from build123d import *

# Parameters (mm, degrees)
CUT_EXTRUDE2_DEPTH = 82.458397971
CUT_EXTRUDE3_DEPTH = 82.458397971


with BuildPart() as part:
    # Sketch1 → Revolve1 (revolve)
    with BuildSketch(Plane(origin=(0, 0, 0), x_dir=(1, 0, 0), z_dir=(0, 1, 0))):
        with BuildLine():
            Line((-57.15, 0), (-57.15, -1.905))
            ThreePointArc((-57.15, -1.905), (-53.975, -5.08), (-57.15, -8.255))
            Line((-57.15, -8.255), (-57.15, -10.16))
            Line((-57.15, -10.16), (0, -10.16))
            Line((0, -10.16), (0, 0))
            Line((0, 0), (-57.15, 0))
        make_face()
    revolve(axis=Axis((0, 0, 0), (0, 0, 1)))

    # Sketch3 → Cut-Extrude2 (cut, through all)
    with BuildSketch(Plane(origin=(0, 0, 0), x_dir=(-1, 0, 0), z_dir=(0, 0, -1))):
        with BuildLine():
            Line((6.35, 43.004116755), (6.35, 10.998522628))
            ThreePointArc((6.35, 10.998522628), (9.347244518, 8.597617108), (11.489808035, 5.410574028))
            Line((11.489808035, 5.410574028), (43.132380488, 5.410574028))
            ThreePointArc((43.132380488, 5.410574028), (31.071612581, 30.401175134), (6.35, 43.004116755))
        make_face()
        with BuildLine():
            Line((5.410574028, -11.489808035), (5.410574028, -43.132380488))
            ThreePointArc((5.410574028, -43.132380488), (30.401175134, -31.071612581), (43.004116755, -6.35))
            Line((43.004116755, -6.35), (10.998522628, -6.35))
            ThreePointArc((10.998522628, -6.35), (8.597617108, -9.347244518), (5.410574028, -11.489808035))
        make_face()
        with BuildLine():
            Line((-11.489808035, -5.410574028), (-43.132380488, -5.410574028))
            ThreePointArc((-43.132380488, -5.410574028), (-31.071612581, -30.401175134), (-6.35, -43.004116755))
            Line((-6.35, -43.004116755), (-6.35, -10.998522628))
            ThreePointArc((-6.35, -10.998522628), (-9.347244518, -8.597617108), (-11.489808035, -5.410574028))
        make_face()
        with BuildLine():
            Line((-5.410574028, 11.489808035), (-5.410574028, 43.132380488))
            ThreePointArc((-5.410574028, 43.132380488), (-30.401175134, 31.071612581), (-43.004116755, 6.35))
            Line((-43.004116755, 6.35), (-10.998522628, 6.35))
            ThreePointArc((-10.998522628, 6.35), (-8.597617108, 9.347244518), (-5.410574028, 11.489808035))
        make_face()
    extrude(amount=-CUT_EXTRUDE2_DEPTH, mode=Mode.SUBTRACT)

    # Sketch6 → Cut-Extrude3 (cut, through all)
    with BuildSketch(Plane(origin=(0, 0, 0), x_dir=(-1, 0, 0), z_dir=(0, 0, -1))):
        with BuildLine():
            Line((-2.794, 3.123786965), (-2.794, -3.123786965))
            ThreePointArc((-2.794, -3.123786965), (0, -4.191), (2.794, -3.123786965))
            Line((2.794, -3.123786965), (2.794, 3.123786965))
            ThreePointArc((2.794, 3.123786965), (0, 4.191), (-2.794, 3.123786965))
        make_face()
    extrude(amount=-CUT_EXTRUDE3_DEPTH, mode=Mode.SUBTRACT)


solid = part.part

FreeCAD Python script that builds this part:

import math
import FreeCAD as App
import Part
import Sketcher
Q = App.Units.Quantity

doc = App.newDocument("Part")
params = doc.addObject("Spreadsheet::Sheet", "Params")
for row, (alias, value) in enumerate([
    ("sketch1_height", "0.4 in"),
    ("sketch1_radius", "0.125 in"),
    ("sketch1_width", "2.25 in"),
    ("revolution_angle", "360 deg"),
    ("sketch2_radius", "0.5 in"),
    ("sketch3_radius", "0.165 in"),
], start=1):
    params.set(f"A{row}", alias)
    params.set(f"B{row}", "=" + value)
    params.setAlias(f"B{row}", alias)

body = doc.addObject("PartDesign::Body", "Body")

sketch1 = doc.addObject("Sketcher::SketchObject", "Sketch")
body.addObject(sketch1)
sketch1.AttachmentSupport = (doc.XZ_Plane, [""])
sketch1.MapMode = "FlatFace"
sketch1.addGeometry([
    Part.LineSegment(App.Vector(-57.15, 0, 0), App.Vector(-57.15, 1.905, 0)),
    Part.ArcOfCircle(Part.Circle(App.Vector(-57.15, 5.08, 0), App.Vector(0, 0, 1), 3.175), math.radians(-90), math.radians(90)),
    Part.LineSegment(App.Vector(-57.15, 8.255, 0), App.Vector(-57.15, 10.16, 0)),
    Part.LineSegment(App.Vector(-57.15, 10.16, 0), App.Vector(0, 10.16, 0)),
    Part.LineSegment(App.Vector(0, 10.16, 0), App.Vector(0, 0, 0)),
    Part.LineSegment(App.Vector(0, 0, 0), App.Vector(-57.15, 0, 0)),
], False)
sketch1.addConstraint([
    Sketcher.Constraint("Coincident", 0, 2, 1, 1),
    Sketcher.Constraint("Coincident", 1, 2, 2, 1),
    Sketcher.Constraint("Coincident", 2, 2, 3, 1),
    Sketcher.Constraint("Coincident", 3, 2, 4, 1),
    Sketcher.Constraint("Coincident", 4, 2, 5, 1),
    Sketcher.Constraint("Coincident", 5, 2, 0, 1),
    Sketcher.Constraint("Vertical", 0),
    Sketcher.Constraint("Vertical", 2),
    Sketcher.Constraint("Horizontal", 3),
    Sketcher.Constraint("Vertical", 4),
    Sketcher.Constraint("Horizontal", 5),
    Sketcher.Constraint("Coincident", 4, 2, -1, 1),
    Sketcher.Constraint("Vertical", 1, 3, 0, 2),
    Sketcher.Constraint("Vertical", 0, 2, 1, 2),
    Sketcher.Constraint("Equal", 0, 2),
    Sketcher.Constraint("DistanceY", 4, 2, 4, 1, Q("0.4 in")),
    Sketcher.Constraint("Radius", 1, Q("0.125 in")),
    Sketcher.Constraint("DistanceX", 3, 1, 3, 2, Q("2.25 in")),
])
sketch1.setExpression("Constraints[15]", "Params.sketch1_height")
sketch1.setExpression("Constraints[16]", "Params.sketch1_radius")
sketch1.setExpression("Constraints[17]", "Params.sketch1_width")
revolution = doc.addObject("PartDesign::Revolution", "Revolution")
body.addObject(revolution)
revolution.Profile = sketch1
revolution.ReferenceAxis = (sketch1, ["V_Axis"])
revolution.setExpression("Angle", "Params.revolution_angle")

sketch2 = doc.addObject("Sketcher::SketchObject", "Sketch001")
body.addObject(sketch2)
sketch2.AttachmentSupport = (doc.XY_Plane, [""])
sketch2.MapMode = "FlatFace"
sketch2.addGeometry([
    Part.LineSegment(App.Vector(-6.35, 43.004117, 0), App.Vector(-6.35, 10.998523, 0)),
    Part.ArcOfCircle(Part.Circle(App.Vector(0, 0, 0), App.Vector(0, 0, 1), 12.7), math.radians(120), math.radians(154.784158)),
    Part.LineSegment(App.Vector(-11.489808, 5.410574, 0), App.Vector(-43.13238, 5.410574, 0)),
    Part.ArcOfCircle(Part.Circle(App.Vector(0, 0, 0), App.Vector(0, 0, 1), 43.47041), math.radians(98.399615), math.radians(172.8501)),
    Part.LineSegment(App.Vector(-5.410574, -11.489808, 0), App.Vector(-5.410574, -43.13238, 0)),
    Part.ArcOfCircle(Part.Circle(App.Vector(0, 0, 0), App.Vector(0, 0, 1), 43.47041), math.radians(-171.600385), math.radians(-97.1499)),
    Part.LineSegment(App.Vector(-43.004117, -6.35, 0), App.Vector(-10.998523, -6.35, 0)),
    Part.ArcOfCircle(Part.Circle(App.Vector(0, 0, 0), App.Vector(0, 0, 1), 12.7), math.radians(-150), math.radians(-115.215842)),
    Part.LineSegment(App.Vector(11.489808, -5.410574, 0), App.Vector(43.13238, -5.410574, 0)),
    Part.ArcOfCircle(Part.Circle(App.Vector(0, 0, 0), App.Vector(0, 0, 1), 43.47041), math.radians(-81.600385), math.radians(-7.1499)),
    Part.LineSegment(App.Vector(6.35, -43.004117, 0), App.Vector(6.35, -10.998523, 0)),
    Part.ArcOfCircle(Part.Circle(App.Vector(0, 0, 0), App.Vector(0, 0, 1), 12.7), math.radians(-60), math.radians(-25.215842)),
    Part.LineSegment(App.Vector(5.410574, 11.489808, 0), App.Vector(5.410574, 43.13238, 0)),
    Part.ArcOfCircle(Part.Circle(App.Vector(0, 0, 0), App.Vector(0, 0, 1), 43.47041), math.radians(8.399615), math.radians(82.8501)),
    Part.LineSegment(App.Vector(43.004117, 6.35, 0), App.Vector(10.998523, 6.35, 0)),
    Part.ArcOfCircle(Part.Circle(App.Vector(0, 0, 0), App.Vector(0, 0, 1), 12.7), math.radians(30), math.radians(64.784158)),
], False)
sketch2.addConstraint([
    Sketcher.Constraint("Coincident", 0, 2, 1, 1),
    Sketcher.Constraint("Coincident", 1, 2, 2, 1),
    Sketcher.Constraint("Coincident", 2, 2, 3, 2),
    Sketcher.Constraint("Coincident", 3, 1, 0, 1),
    Sketcher.Constraint("Coincident", 4, 2, 5, 2),
    Sketcher.Constraint("Coincident", 5, 1, 6, 1),
    Sketcher.Constraint("Coincident", 6, 2, 7, 1),
    Sketcher.Constraint("Coincident", 7, 2, 4, 1),
    Sketcher.Constraint("Coincident", 8, 2, 9, 2),
    Sketcher.Constraint("Coincident", 9, 1, 10, 1),
    Sketcher.Constraint("Coincident", 10, 2, 11, 1),
    Sketcher.Constraint("Coincident", 11, 2, 8, 1),
    Sketcher.Constraint("Coincident", 12, 2, 13, 2),
    Sketcher.Constraint("Coincident", 13, 1, 14, 1),
    Sketcher.Constraint("Coincident", 14, 2, 15, 1),
    Sketcher.Constraint("Coincident", 15, 2, 12, 1),
    Sketcher.Constraint("Vertical", 0),
    Sketcher.Constraint("Horizontal", 2),
    Sketcher.Constraint("Vertical", 4),
    Sketcher.Constraint("Horizontal", 6),
    Sketcher.Constraint("Horizontal", 8),
    Sketcher.Constraint("Vertical", 10),
    Sketcher.Constraint("Vertical", 12),
    Sketcher.Constraint("Horizontal", 14),
    Sketcher.Constraint("Coincident", 1, 3, -1, 1),
    Sketcher.Constraint("Coincident", 3, 3, -1, 1),
    Sketcher.Constraint("Coincident", 5, 3, -1, 1),
    Sketcher.Constraint("Coincident", 7, 3, -1, 1),
    Sketcher.Constraint("Coincident", 9, 3, -1, 1),
    Sketcher.Constraint("Coincident", 11, 3, -1, 1),
    Sketcher.Constraint("Coincident", 13, 3, -1, 1),
    Sketcher.Constraint("Coincident", 15, 3, -1, 1),
    Sketcher.Constraint("Equal", 3, 5),
    Sketcher.Constraint("Equal", 1, 7),
    Sketcher.Constraint("Equal", 5, 9),
    Sketcher.Constraint("Equal", 7, 11),
    Sketcher.Constraint("Equal", 9, 13),
    Sketcher.Constraint("Equal", 11, 15),
    Sketcher.Constraint("Equal", 2, 8),
    Sketcher.Constraint("Equal", 6, 14),
    Sketcher.Constraint("Equal", 14, 0),
    Sketcher.Constraint("Equal", 8, 4),
    Sketcher.Constraint("Equal", 0, 10),
    Sketcher.Constraint("Equal", 4, 12),
    Sketcher.Constraint("Radius", 1, Q("0.5 in")),
    Sketcher.Constraint("DistanceX", 0, 2, -1, 1, Q("0.25 in")),
    Sketcher.Constraint("Radius", 3, Q("43.47041 mm")),
    Sketcher.Constraint("DistanceX", 2, 2, 2, 1, Q("31.642572 mm")),
])
sketch2.setExpression("Constraints[44]", "Params.sketch2_radius")
pocket1 = doc.addObject("PartDesign::Pocket", "Pocket")
body.addObject(pocket1)
pocket1.Profile = sketch2
pocket1.Type = "ThroughAll"
pocket1.Reversed = True

sketch3 = doc.addObject("Sketcher::SketchObject", "Sketch002")
body.addObject(sketch3)
sketch3.AttachmentSupport = (doc.XY_Plane, [""])
sketch3.MapMode = "FlatFace"
sketch3.addGeometry([
    Part.LineSegment(App.Vector(2.794, 3.123787, 0), App.Vector(2.794, -3.123787, 0)),
    Part.ArcOfCircle(Part.Circle(App.Vector(0, 0, 0), App.Vector(0, 0, 1), 4.191), math.radians(-131.810315), math.radians(-48.189685)),
    Part.LineSegment(App.Vector(-2.794, -3.123787, 0), App.Vector(-2.794, 3.123787, 0)),
    Part.ArcOfCircle(Part.Circle(App.Vector(0, 0, 0), App.Vector(0, 0, 1), 4.191), math.radians(48.189685), math.radians(131.810315)),
], False)
sketch3.addConstraint([
    Sketcher.Constraint("Coincident", 0, 2, 1, 2),
    Sketcher.Constraint("Coincident", 1, 1, 2, 1),
    Sketcher.Constraint("Coincident", 2, 2, 3, 2),
    Sketcher.Constraint("Coincident", 3, 1, 0, 1),
    Sketcher.Constraint("Vertical", 0),
    Sketcher.Constraint("Vertical", 2),
    Sketcher.Constraint("Coincident", 1, 3, -1, 1),
    Sketcher.Constraint("Coincident", 3, 3, -1, 1),
    Sketcher.Constraint("Equal", 1, 3),
    Sketcher.Constraint("Horizontal", 0, 2, 1, 1),
    Sketcher.Constraint("Radius", 1, Q("0.165 in")),
    Sketcher.Constraint("DistanceX", -1, 1, 0, 2, Q("0.11 in")),
])
sketch3.setExpression("Constraints[10]", "Params.sketch3_radius")
pocket2 = doc.addObject("PartDesign::Pocket", "Pocket001")
body.addObject(pocket2)
pocket2.Profile = sketch3
pocket2.Type = "ThroughAll"
pocket2.Reversed = True

doc.recompute()
